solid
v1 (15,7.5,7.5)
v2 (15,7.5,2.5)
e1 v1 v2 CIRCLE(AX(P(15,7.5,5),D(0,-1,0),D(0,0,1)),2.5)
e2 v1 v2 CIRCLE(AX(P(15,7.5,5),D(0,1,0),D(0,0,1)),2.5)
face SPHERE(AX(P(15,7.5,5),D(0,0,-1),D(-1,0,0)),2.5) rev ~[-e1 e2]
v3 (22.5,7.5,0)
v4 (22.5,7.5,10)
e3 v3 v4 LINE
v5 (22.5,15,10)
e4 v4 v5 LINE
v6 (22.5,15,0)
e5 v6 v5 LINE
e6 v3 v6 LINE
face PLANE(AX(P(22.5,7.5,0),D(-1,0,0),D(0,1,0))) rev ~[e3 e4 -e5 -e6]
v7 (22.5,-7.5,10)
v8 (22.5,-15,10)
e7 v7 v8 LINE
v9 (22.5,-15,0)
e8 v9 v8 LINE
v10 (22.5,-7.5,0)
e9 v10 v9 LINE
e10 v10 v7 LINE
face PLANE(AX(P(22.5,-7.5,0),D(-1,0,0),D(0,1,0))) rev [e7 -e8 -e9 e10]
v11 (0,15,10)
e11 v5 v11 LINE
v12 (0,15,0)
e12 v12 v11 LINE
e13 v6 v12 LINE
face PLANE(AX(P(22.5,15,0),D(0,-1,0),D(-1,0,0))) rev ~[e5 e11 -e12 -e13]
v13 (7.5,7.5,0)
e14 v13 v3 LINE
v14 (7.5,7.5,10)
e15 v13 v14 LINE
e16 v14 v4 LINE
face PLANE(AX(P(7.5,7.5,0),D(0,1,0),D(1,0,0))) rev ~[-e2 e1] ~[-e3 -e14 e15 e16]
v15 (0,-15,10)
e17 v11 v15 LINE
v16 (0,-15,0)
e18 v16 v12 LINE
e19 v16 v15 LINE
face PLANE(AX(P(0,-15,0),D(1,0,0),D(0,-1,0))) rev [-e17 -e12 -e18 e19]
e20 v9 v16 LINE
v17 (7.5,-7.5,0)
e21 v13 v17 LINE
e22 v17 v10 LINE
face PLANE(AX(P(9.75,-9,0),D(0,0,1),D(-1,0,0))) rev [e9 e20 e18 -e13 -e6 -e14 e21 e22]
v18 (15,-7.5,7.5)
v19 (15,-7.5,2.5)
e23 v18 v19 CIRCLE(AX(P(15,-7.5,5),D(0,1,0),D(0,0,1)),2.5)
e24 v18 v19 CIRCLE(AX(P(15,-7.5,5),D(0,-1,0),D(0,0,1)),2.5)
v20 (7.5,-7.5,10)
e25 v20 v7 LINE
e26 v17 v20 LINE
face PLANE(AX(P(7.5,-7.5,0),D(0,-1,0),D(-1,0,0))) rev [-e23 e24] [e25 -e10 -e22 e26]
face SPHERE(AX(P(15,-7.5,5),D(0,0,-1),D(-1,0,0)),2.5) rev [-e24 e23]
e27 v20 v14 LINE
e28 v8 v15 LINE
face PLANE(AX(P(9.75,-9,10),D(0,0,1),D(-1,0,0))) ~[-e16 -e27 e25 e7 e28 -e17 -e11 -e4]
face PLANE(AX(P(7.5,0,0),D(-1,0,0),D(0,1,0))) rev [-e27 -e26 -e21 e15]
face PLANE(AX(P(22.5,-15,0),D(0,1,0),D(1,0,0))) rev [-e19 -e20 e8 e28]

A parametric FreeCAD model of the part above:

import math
import FreeCAD as App
import Part
import Sketcher
from FreeCAD import Vector

doc = App.newDocument("Part")
body = doc.addObject("PartDesign::Body", "Body")

# Sketch on XY plane
sketch1 = doc.addObject("Sketcher::SketchObject", "Sketch")
body.addObject(sketch1)
sketch1.AttachmentSupport = (doc.XY_Plane, [""])
sketch1.MapMode = "FlatFace"
sketch1.addGeometry(Part.LineSegment(Vector(22, 8, 0), Vector(22, 15, 0)), False)
sketch1.addGeometry(Part.LineSegment(Vector(22, 15, 0), Vector(0, 15, 0)), False)
sketch1.addGeometry(Part.LineSegment(Vector(0, 15, 0), Vector(0, 0, 0)), False)
sketch1.addGeometry(Part.LineSegment(Vector(0, 0, 0), Vector(8, 0, 0)), False)
sketch1.addGeometry(Part.LineSegment(Vector(8, 0, 0), Vector(8, 8, 0)), False)
sketch1.addGeometry(Part.LineSegment(Vector(8, 8, 0), Vector(22, 8, 0)), False)
sketch1.addConstraint(Sketcher.Constraint("Coincident", 0, 2, 1, 1))
sketch1.addConstraint(Sketcher.Constraint("Coincident", 1, 2, 2, 1))
sketch1.addConstraint(Sketcher.Constraint("Coincident", 2, 2, 3, 1))
sketch1.addConstraint(Sketcher.Constraint("Coincident", 3, 2, 4, 1))
sketch1.addConstraint(Sketcher.Constraint("Coincident", 4, 2, 5, 1))
sketch1.addConstraint(Sketcher.Constraint("Coincident", 5, 2, 0, 1))
sketch1.addConstraint(Sketcher.Constraint("Vertical", 0))
sketch1.addConstraint(Sketcher.Constraint("Horizontal", 1))
sketch1.addConstraint(Sketcher.Constraint("Vertical", 2))
sketch1.addConstraint(Sketcher.Constraint("Horizontal", 3))
sketch1.addConstraint(Sketcher.Constraint("Vertical", 4))
sketch1.addConstraint(Sketcher.Constraint("Horizontal", 5))
sketch1.addConstraint(Sketcher.Constraint("Coincident", 2, 2, -1, 1))
sketch1.addConstraint(Sketcher.Constraint("Equal", 3, 0))
sketch1.addConstraint(Sketcher.Constraint("Equal", 5, 2))
sketch1.addConstraint(Sketcher.Constraint("Equal", 0, 4))
sketch1.addConstraint(Sketcher.Constraint("DistanceX", 5, 1, 5, 2, 15.0))
pad1 = doc.addObject("PartDesign::Pad", "Pad")
body.addObject(pad1)
pad1.Profile = sketch1
pad1.Length = 10

# Sketch on XZ plane
sketch2 = doc.addObject("Sketcher::SketchObject", "Sketch001")
body.addObject(sketch2)
sketch2.AttachmentSupport = (doc.XZ_Plane, [""])
sketch2.MapMode = "FlatFace"
sketch2.AttachmentOffset = App.Placement(Vector(0, 0, -7.5), App.Rotation())
sketch2.addGeometry(Part.LineSegment(Vector(15, 2.5, 0), Vector(15, 7.5, 0)), False)
sketch2.addGeometry(Part.ArcOfCircle(Part.Circle(Vector(15, 5, 0), Vector(0, 0, 1), 2.5), math.radians(90), math.radians(270)), False)
sketch2.addGeometry(Part.LineSegment(Vector(15, 7.5, 0), Vector(15, 2.5, 0)), True)  # axis
sketch2.addConstraint(Sketcher.Constraint("Coincident", 0, 1, 1, 2))
sketch2.addConstraint(Sketcher.Constraint("Coincident", 1, 1, 0, 2))
sketch2.addConstraint(Sketcher.Constraint("Vertical", 0))
sketch2.addConstraint(Sketcher.Constraint("Vertical", 2))
sketch2.addConstraint(Sketcher.Constraint("Coincident", 2, 1, 1, 1))
sketch2.addConstraint(Sketcher.Constraint("Vertical", 1, 3, 0, 1))
sketch2.addConstraint(Sketcher.Constraint("Equal", 0, 2))
sketch2.addConstraint(Sketcher.Constraint("Radius", 1, 2.5))
sketch2.addConstraint(Sketcher.Constraint("DistanceX", -1, 1, 1, 3, 15.0))
sketch2.addConstraint(Sketcher.Constraint("DistanceY", -1, 1, 1, 3, 5.0))
groove = doc.addObject("PartDesign::Groove", "Groove")
body.addObject(groove)
groove.Profile = sketch2
groove.ReferenceAxis = (sketch2, ["Axis0"])
groove.Angle = 360
body2 = doc.addObject("PartDesign::Body", "Body001")
doc.recompute()

body2.BaseFeature = body
doc.recompute()

mirroring = doc.addObject("Part::Mirroring", "Mirroring")
mirroring.Source = body
mirroring.Base = Vector(0, 0, 0)
mirroring.Normal = Vector(0, -1, 0)
body3 = doc.addObject("PartDesign::Body", "Body002")
body3.BaseFeature = mirroring
boolean = doc.addObject("PartDesign::Boolean", "Boolean")
body2.addObject(boolean)
boolean.Type = "Fuse"
boolean.addObjects([body3])
doc.recompute()
mirroring.Visibility = False

doc.recompute()
